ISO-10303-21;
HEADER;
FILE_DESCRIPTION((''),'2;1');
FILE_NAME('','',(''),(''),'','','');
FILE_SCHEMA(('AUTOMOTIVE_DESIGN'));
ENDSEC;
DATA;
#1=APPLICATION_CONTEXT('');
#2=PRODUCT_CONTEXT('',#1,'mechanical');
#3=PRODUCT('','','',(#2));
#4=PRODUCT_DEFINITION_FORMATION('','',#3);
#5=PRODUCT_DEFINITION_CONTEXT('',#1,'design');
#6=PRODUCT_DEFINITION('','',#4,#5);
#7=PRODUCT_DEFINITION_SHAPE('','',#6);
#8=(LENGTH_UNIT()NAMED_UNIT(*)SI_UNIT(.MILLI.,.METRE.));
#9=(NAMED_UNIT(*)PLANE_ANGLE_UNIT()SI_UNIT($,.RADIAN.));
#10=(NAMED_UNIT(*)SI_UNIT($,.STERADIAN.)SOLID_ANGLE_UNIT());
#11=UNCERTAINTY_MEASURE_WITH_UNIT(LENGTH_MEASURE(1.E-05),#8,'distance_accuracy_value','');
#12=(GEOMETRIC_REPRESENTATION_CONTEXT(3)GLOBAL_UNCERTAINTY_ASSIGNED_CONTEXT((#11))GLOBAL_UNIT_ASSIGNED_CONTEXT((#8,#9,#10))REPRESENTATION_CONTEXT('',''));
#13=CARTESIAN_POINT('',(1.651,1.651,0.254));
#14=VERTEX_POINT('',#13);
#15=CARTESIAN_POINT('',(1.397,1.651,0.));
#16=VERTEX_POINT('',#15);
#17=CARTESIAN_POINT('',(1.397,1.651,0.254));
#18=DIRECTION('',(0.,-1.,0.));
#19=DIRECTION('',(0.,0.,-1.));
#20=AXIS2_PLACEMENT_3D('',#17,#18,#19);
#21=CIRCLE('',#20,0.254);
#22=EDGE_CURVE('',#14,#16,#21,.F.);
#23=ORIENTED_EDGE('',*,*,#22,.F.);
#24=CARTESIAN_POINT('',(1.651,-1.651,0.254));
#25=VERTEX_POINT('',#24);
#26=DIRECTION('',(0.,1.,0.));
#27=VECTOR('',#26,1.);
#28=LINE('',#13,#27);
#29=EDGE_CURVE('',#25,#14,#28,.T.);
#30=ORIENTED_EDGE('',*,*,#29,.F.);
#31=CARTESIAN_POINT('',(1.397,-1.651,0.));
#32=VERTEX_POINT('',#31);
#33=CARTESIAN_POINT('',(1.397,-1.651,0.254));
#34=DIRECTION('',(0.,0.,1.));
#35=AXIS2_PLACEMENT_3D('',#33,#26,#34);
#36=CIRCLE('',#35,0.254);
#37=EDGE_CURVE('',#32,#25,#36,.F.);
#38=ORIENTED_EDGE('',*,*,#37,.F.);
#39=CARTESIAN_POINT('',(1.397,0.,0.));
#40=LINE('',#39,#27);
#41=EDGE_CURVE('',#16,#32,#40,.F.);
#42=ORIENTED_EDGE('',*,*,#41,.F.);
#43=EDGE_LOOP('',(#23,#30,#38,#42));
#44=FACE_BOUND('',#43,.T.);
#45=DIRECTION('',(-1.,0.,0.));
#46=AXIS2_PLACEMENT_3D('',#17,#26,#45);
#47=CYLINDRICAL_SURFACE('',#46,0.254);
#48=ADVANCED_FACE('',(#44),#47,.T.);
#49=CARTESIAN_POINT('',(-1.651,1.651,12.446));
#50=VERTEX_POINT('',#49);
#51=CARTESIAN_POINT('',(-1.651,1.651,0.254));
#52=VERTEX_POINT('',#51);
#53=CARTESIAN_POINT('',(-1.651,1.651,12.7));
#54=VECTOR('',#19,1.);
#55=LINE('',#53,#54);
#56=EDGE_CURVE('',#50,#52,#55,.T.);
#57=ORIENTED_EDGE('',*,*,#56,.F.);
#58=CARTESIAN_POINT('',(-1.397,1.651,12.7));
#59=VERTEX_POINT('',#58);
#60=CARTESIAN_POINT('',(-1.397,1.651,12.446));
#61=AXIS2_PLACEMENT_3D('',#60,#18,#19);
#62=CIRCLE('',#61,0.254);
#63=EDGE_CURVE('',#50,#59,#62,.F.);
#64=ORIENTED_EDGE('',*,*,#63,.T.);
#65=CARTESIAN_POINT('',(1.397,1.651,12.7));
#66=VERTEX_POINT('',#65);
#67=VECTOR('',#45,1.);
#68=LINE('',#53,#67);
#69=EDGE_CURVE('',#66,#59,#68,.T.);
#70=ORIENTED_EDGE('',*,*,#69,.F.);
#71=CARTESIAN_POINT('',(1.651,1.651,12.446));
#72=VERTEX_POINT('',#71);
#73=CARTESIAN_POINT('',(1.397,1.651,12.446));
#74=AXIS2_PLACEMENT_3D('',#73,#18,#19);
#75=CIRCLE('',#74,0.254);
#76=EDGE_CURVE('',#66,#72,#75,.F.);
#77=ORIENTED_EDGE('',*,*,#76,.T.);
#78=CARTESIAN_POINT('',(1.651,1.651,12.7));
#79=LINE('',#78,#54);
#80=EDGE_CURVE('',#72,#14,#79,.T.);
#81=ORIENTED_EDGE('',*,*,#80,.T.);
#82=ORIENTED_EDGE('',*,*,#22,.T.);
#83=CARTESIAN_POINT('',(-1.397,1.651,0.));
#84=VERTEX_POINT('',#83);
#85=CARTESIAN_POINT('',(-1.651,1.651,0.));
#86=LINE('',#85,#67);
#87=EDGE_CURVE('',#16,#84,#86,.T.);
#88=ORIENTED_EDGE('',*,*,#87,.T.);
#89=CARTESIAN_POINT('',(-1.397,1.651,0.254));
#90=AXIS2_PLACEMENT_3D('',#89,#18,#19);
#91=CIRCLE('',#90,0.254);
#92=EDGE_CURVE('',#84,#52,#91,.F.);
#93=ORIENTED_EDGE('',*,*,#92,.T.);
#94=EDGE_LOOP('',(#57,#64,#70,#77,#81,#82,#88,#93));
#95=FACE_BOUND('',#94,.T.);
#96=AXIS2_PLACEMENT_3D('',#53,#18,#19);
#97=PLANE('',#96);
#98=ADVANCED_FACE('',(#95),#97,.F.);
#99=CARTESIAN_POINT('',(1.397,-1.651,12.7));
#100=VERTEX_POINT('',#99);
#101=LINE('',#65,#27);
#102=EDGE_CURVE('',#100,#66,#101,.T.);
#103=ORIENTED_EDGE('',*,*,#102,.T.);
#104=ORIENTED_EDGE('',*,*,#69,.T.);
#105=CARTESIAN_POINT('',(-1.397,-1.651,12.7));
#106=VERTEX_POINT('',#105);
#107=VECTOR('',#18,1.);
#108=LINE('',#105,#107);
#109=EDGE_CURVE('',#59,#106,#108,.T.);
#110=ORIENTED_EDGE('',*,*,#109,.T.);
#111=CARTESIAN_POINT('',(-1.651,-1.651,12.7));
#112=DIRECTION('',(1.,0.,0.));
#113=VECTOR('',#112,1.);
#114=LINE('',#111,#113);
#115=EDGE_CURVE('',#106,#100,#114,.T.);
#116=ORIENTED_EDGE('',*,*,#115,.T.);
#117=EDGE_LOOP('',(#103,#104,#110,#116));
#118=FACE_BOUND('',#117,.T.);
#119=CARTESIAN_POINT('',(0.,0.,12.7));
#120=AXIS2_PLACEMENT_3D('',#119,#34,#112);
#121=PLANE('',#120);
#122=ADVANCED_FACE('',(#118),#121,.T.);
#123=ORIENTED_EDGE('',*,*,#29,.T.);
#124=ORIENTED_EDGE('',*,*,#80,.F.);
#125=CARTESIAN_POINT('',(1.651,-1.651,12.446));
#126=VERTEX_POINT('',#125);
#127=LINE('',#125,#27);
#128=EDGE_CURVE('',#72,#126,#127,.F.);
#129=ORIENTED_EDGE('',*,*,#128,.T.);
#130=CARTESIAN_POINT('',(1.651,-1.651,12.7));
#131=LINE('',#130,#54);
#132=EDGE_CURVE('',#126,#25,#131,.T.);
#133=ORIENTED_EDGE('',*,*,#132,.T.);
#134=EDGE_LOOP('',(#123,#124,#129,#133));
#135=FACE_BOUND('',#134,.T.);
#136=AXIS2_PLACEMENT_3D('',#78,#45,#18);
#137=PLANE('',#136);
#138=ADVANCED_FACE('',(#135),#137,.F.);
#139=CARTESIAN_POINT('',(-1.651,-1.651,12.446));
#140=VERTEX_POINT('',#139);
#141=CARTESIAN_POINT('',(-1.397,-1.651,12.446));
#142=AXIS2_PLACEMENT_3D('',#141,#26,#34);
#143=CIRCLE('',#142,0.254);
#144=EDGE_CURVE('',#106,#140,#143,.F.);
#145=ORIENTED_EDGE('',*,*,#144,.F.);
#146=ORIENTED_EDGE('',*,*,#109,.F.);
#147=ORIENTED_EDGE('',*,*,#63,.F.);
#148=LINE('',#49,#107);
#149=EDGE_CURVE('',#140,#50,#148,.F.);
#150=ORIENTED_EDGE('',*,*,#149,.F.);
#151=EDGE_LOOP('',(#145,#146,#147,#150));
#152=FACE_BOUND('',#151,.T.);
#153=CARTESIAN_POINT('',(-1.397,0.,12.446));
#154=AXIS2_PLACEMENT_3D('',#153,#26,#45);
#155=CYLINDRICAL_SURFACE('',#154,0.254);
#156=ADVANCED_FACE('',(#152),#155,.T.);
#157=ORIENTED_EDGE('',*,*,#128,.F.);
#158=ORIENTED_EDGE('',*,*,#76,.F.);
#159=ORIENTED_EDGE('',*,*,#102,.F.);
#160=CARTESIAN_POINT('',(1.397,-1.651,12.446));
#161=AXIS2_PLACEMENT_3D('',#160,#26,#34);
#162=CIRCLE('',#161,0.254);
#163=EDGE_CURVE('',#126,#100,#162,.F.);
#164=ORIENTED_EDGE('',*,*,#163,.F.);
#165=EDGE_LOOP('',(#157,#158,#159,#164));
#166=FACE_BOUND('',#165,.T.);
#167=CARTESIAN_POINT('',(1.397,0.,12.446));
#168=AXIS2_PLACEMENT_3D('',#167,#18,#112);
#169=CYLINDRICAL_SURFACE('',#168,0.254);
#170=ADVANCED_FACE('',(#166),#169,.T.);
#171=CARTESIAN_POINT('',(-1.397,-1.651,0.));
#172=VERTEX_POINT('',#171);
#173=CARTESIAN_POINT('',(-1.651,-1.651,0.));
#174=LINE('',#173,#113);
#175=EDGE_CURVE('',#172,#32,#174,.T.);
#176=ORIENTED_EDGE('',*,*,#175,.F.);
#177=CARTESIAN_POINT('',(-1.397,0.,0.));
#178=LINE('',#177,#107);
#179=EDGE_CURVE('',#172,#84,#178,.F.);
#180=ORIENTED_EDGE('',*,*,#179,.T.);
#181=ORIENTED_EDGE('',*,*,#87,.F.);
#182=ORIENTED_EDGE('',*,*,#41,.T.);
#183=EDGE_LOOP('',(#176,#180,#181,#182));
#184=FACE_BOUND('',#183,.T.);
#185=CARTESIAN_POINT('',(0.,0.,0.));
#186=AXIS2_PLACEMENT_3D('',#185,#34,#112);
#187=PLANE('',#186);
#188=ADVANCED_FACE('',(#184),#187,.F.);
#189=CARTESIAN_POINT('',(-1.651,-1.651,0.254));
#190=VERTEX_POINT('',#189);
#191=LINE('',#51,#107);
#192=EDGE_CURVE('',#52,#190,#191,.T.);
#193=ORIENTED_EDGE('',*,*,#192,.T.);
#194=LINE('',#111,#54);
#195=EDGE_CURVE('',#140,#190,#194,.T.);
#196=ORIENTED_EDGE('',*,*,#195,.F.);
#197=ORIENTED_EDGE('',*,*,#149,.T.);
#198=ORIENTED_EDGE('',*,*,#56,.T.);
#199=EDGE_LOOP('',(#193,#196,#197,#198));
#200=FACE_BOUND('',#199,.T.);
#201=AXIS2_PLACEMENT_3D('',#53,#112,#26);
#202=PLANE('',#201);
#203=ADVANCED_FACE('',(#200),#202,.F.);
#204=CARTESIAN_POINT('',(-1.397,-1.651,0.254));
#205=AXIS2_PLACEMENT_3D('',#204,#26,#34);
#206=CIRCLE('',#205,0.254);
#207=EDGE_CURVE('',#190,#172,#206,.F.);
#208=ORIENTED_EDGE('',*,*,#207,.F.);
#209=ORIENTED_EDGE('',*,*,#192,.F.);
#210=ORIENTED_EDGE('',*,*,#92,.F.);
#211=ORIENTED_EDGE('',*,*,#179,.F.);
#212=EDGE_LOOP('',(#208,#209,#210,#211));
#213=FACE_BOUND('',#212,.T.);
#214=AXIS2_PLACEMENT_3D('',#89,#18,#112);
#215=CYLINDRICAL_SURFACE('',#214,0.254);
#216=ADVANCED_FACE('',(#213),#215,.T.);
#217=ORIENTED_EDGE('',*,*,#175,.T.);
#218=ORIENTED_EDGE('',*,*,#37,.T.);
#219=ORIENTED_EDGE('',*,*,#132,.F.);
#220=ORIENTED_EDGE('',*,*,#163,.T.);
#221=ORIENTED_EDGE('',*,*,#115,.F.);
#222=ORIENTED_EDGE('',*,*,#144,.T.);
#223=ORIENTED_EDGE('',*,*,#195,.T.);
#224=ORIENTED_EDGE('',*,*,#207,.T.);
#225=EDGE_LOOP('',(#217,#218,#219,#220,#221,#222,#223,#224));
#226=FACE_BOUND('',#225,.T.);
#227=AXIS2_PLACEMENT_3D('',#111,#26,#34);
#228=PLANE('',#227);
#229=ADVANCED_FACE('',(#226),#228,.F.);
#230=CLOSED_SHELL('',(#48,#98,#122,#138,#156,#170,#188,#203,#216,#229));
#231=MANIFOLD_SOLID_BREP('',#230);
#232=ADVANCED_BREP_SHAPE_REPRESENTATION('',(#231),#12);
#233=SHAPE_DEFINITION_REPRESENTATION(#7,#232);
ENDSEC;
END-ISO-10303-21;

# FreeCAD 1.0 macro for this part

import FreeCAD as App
import Part
import Sketcher
from FreeCAD import Vector
Q = App.Units.Quantity


def edges_at(feature, points):
    """Names of the edges that pass closest to the given points."""
    edges = feature.Shape.Edges
    near = lambda p: min(range(len(edges)), key=lambda i: edges[i].distToShape(Part.Vertex(*p))[0])
    return sorted({f"Edge{near(p) + 1}" for p in points})

doc = App.newDocument("Part")
body = doc.addObject("PartDesign::Body", "Body")

# Sketch on XY plane
sketch1 = body.newObject("Sketcher::SketchObject", "Sketch")
sketch1.AttachmentSupport = (doc.getObject("XY_Plane"), [""])
sketch1.MapMode = "FlatFace"
sketch1.addGeometry([
    Part.LineSegment(Vector(-1.7, 1.7, 0), Vector(-1.7, -1.7, 0)),
    Part.LineSegment(Vector(-1.7, -1.7, 0), Vector(1.7, -1.7, 0)),
    Part.LineSegment(Vector(1.7, -1.7, 0), Vector(1.7, 1.7, 0)),
    Part.LineSegment(Vector(1.7, 1.7, 0), Vector(-1.7, 1.7, 0)),
], False)
sketch1.addConstraint([
    Sketcher.Constraint("Coincident", 0, 2, 1, 1),
    Sketcher.Constraint("Coincident", 1, 2, 2, 1),
    Sketcher.Constraint("Coincident", 2, 2, 3, 1),
    Sketcher.Constraint("Coincident", 3, 2, 0, 1),
    Sketcher.Constraint("Vertical", 0),
    Sketcher.Constraint("Horizontal", 1),
    Sketcher.Constraint("Vertical", 2),
    Sketcher.Constraint("Horizontal", 3),
    Sketcher.Constraint("Symmetric", 0, 2, 2, 2, -1, 1),
    Sketcher.Constraint("Equal", 3, 0),
    Sketcher.Constraint("DistanceX", 1, 1, 1, 2, Q("0.13 in")),
])
pad1 = body.newObject("PartDesign::Pad", "Pad")
pad1.Profile = sketch1
pad1.Length = Q("0.5 in")
doc.recompute()

fillet = body.newObject("PartDesign::Fillet", "Fillet")
fillet.Base = (pad1, edges_at(pad1, [
    (-1.651, 0, 12.7),
    (1.651, 0, 12.7),
    (-1.651, 0, 0),
    (1.651, 0, 0),
]))
fillet.Radius = Q("0.01 in")

doc.recompute()
